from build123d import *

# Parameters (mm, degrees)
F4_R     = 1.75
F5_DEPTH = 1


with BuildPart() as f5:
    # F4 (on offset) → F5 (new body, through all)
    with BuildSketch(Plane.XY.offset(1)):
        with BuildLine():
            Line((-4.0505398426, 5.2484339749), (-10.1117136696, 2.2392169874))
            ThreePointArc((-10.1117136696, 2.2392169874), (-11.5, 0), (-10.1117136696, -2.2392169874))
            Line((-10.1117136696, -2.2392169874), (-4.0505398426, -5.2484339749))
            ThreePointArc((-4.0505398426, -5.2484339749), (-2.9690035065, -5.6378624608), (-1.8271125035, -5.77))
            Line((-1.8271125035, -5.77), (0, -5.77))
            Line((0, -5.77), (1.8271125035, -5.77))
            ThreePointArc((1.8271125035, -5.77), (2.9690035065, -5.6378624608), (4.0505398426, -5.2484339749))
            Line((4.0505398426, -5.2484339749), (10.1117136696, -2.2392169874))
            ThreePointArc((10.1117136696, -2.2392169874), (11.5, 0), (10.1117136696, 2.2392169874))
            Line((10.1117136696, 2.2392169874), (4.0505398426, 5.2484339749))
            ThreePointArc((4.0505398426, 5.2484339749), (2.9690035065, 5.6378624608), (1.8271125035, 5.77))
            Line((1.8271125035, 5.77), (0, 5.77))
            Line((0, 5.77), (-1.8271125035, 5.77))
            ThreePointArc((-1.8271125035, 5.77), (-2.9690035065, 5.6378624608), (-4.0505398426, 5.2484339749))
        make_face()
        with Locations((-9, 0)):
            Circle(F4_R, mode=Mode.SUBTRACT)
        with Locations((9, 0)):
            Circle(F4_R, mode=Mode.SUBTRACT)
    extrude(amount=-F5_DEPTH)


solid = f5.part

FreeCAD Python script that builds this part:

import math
import FreeCAD as App
import Part
import Sketcher
from FreeCAD import Vector
Q = App.Units.Quantity

doc = App.newDocument("Part")
body = doc.addObject("PartDesign::Body", "Body")

# Sketch on XY plane
sketch1 = doc.addObject("Sketcher::SketchObject", "Sketch")
body.addObject(sketch1)
sketch1.AttachmentSupport = (doc.XY_Plane, [""])
sketch1.MapMode = "FlatFace"
sketch1.AttachmentOffset = App.Placement(Vector(0, 0, 1), App.Rotation())
sketch1.addGeometry(Part.LineSegment(Vector(-4.1, 5.2, 0), Vector(-10.1, 2.2, 0)), False)
sketch1.addGeometry(Part.ArcOfCircle(Part.Circle(Vector(-9, 0, 0), Vector(0, 0, 1), 2.5), math.radians(116), math.radians(244)), False)
sketch1.addGeometry(Part.LineSegment(Vector(-10.1, -2.2, 0), Vector(-4.1, -5.2, 0)), False)
sketch1.addGeometry(Part.ArcOfCircle(Part.Circle(Vector(-1.8, -0.8, 0), Vector(0, 0, 1), 5), math.radians(-116), math.radians(-90)), False)
sketch1.addGeometry(Part.LineSegment(Vector(-1.8, -5.8, 0), Vector(1.8, -5.8, 0)), False)
sketch1.addGeometry(Part.ArcOfCircle(Part.Circle(Vector(1.8, -0.8, 0), Vector(0, 0, 1), 5), math.radians(-90), math.radians(-64)), False)
sketch1.addGeometry(Part.LineSegment(Vector(4.1, -5.2, 0), Vector(10.1, -2.2, 0)), False)
sketch1.addGeometry(Part.ArcOfCircle(Part.Circle(Vector(9, 0, 0), Vector(0, 0, 1), 2.5), math.radians(-64), math.radians(64)), False)
sketch1.addGeometry(Part.LineSegment(Vector(10.1, 2.2, 0), Vector(4.1, 5.2, 0)), False)
sketch1.addGeometry(Part.ArcOfCircle(Part.Circle(Vector(1.8, 0.8, 0), Vector(0, 0, 1), 5), math.radians(64), math.radians(90)), False)
sketch1.addGeometry(Part.LineSegment(Vector(1.8, 5.8, 0), Vector(-1.8, 5.8, 0)), False)
sketch1.addGeometry(Part.ArcOfCircle(Part.Circle(Vector(-1.8, 0.8, 0), Vector(0, 0, 1), 5), math.radians(90), math.radians(116)), False)
sketch1.addGeometry(Part.Circle(Vector(-9, 0, 0), Vector(0, 0, 1), 1.8), False)
sketch1.addGeometry(Part.Circle(Vector(9, 0, 0), Vector(0, 0, 1), 1.8), False)
sketch1.addConstraint(Sketcher.Constraint("Tangent", 0, 2, 1, 1))
sketch1.addConstraint(Sketcher.Constraint("Tangent", 1, 2, 2, 1))
sketch1.addConstraint(Sketcher.Constraint("Tangent", 2, 2, 3, 1))
sketch1.addConstraint(Sketcher.Constraint("Tangent", 3, 2, 4, 1))
sketch1.addConstraint(Sketcher.Constraint("Tangent", 4, 2, 5, 1))
sketch1.addConstraint(Sketcher.Constraint("Tangent", 5, 2, 6, 1))
sketch1.addConstraint(Sketcher.Constraint("Tangent", 6, 2, 7, 1))
sketch1.addConstraint(Sketcher.Constraint("Tangent", 7, 2, 8, 1))
sketch1.addConstraint(Sketcher.Constraint("Tangent", 8, 2, 9, 1))
sketch1.addConstraint(Sketcher.Constraint("Tangent", 9, 2, 10, 1))
sketch1.addConstraint(Sketcher.Constraint("Tangent", 10, 2, 11, 1))
sketch1.addConstraint(Sketcher.Constraint("Tangent", 11, 2, 0, 1))
sketch1.addConstraint(Sketcher.Constraint("Horizontal", 4))
sketch1.addConstraint(Sketcher.Constraint("Horizontal", 10))
sketch1.addConstraint(Sketcher.Constraint("Coincident", 12, 3, 1, 3))
sketch1.addConstraint(Sketcher.Constraint("Coincident", 13, 3, 7, 3))
sketch1.addConstraint(Sketcher.Constraint("Equal", 3, 5))
sketch1.addConstraint(Sketcher.Constraint("Equal", 1, 7))
sketch1.addConstraint(Sketcher.Constraint("Equal", 5, 9))
sketch1.addConstraint(Sketcher.Constraint("Equal", 9, 11))
sketch1.addConstraint(Sketcher.Constraint("Equal", 12, 13))
sketch1.addConstraint(Sketcher.Constraint("Symmetric", 1, 3, 7, 3, -1, 1))
sketch1.addConstraint(Sketcher.Constraint("Symmetric", 3, 3, 9, 3, -1, 1))
sketch1.addConstraint(Sketcher.Constraint("Symmetric", 2, 2, 5, 2, -2))
sketch1.addConstraint(Sketcher.Constraint("Parallel", 0, 6))
sketch1.addConstraint(Sketcher.Constraint("Radius", 3, Q("5 mm")))
sketch1.addConstraint(Sketcher.Constraint("Diameter", 12, Q("3.5 mm")))
sketch1.addConstraint(Sketcher.Constraint("Radius", 1, Q("2.5 mm")))
sketch1.addConstraint(Sketcher.Constraint("DistanceX", 1, 3, -1, 1, Q("9 mm")))
sketch1.addConstraint(Sketcher.Constraint("DistanceY", 3, 3, -1, 1, Q("0.77 mm")))
sketch1.addConstraint(Sketcher.Constraint("DistanceX", 0, 2, 11, 3, Q("8.284601 mm")))
pad1 = doc.addObject("PartDesign::Pad", "Pad")
body.addObject(pad1)
pad1.Profile = sketch1
pad1.Length = 1
pad1.Reversed = True

doc.recompute()
